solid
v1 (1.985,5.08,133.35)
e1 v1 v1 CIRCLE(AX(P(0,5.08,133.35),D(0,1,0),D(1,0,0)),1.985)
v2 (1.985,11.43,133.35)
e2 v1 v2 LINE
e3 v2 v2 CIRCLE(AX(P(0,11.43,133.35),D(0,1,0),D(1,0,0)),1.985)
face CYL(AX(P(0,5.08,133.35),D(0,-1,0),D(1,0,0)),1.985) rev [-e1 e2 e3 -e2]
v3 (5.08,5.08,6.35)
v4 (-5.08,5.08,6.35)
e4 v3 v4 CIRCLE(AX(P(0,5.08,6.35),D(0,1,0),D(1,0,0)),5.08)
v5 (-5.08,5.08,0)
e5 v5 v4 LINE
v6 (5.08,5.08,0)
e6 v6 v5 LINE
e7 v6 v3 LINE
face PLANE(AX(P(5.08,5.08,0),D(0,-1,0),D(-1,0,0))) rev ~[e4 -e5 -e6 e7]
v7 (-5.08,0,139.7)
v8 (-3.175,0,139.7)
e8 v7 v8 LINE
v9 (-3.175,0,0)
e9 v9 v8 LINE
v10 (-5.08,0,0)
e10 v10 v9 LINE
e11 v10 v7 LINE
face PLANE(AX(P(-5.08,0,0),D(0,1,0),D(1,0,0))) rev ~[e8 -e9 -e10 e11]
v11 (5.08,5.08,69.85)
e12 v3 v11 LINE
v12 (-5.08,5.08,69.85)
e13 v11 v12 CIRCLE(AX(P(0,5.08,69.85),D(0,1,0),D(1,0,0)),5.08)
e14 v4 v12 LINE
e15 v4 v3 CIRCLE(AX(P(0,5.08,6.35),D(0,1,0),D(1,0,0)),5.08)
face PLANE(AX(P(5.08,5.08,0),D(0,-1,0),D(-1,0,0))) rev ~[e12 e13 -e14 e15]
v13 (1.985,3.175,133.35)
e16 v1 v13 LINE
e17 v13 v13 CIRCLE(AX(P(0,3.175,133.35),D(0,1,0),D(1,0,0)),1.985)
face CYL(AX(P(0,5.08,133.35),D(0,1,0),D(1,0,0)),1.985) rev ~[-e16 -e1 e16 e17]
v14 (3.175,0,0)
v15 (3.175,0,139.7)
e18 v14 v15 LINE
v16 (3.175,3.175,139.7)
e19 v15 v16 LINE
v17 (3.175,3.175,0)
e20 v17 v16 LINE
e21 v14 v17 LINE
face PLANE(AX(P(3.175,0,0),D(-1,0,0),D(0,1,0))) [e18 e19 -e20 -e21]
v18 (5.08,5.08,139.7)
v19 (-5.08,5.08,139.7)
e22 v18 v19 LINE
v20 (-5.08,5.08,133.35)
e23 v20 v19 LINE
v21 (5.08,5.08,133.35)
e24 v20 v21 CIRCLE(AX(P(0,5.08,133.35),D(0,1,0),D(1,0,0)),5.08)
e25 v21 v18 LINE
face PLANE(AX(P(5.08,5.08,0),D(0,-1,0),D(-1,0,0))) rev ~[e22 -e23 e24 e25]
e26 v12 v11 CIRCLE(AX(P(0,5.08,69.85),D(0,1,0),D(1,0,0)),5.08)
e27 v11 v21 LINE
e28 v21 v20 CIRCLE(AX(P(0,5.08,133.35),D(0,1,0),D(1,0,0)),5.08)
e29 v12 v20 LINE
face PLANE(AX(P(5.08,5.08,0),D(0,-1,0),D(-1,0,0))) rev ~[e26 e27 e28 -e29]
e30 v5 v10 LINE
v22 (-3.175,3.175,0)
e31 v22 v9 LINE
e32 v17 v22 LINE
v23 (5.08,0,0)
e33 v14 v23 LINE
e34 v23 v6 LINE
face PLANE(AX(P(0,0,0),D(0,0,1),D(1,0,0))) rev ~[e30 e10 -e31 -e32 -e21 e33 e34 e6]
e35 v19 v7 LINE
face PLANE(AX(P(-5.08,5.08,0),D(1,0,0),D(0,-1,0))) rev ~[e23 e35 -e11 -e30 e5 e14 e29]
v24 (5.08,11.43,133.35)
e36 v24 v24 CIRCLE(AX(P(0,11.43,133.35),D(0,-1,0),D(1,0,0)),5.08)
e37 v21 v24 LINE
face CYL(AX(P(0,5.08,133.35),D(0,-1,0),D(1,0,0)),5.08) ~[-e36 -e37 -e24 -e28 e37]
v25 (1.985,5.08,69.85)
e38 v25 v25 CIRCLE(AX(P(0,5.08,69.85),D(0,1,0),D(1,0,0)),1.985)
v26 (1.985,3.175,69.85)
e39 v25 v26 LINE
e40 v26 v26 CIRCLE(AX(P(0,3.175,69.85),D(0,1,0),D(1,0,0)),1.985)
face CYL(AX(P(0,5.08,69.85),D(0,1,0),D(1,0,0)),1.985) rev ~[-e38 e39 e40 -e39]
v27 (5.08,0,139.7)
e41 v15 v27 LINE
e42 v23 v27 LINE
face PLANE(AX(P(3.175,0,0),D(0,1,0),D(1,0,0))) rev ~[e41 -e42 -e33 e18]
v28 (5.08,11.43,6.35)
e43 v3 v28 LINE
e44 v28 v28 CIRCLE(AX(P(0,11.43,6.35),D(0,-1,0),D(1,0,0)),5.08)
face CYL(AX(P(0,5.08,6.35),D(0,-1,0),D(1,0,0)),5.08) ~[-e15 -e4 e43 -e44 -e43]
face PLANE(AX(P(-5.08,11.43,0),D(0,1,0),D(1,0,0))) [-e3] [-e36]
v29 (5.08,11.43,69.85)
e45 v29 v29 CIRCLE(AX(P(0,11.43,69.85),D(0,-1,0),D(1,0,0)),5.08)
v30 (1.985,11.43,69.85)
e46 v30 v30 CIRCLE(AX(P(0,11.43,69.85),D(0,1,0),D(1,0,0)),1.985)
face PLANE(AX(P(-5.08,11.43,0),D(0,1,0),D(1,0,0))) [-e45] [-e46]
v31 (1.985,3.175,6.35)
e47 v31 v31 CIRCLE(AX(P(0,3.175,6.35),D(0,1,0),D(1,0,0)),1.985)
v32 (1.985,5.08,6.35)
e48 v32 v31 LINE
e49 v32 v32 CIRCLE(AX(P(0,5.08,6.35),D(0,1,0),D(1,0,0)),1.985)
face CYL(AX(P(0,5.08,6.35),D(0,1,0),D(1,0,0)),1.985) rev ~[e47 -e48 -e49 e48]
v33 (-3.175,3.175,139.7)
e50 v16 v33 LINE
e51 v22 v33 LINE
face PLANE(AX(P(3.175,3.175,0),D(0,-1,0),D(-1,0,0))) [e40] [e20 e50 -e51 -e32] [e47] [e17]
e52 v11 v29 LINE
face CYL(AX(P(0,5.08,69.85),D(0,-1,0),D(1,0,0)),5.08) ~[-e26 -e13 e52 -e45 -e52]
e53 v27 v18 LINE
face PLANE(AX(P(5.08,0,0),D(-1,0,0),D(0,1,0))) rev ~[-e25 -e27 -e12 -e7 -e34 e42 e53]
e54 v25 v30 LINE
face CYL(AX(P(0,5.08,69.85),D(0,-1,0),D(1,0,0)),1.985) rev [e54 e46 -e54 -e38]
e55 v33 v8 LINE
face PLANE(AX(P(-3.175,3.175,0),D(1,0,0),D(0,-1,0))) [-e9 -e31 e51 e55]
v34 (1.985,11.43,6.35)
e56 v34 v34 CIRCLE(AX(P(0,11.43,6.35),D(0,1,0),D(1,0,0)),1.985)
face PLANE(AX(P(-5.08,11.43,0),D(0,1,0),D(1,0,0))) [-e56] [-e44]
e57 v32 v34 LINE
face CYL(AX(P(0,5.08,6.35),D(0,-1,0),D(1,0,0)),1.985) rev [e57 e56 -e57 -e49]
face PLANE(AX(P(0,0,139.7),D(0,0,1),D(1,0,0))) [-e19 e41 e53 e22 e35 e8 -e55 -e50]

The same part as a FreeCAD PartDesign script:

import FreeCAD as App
import Part
import Sketcher
Q = App.Units.Quantity


def add_polygon(sketch, points):
    """Adds a closed chain of lines whose ends are joined by coincident constraints."""
    first, n = sketch.GeometryCount, len(points)
    for a, b in zip(points, points[1:] + points[:1]):
        sketch.addGeometry(Part.LineSegment(App.Vector(*a, 0), App.Vector(*b, 0)), False)
    for i in range(n):
        sketch.addConstraint(Sketcher.Constraint("Coincident", first + i, 2, first + (i + 1) % n, 1))

doc = App.newDocument("Part")
body = doc.addObject("PartDesign::Body", "Body")

# Sketch on XY plane
sketch1 = body.newObject("Sketcher::SketchObject", "Sketch")
sketch1.AttachmentSupport = (doc.getObject("XY_Plane"), [""])
sketch1.MapMode = "FlatFace"
add_polygon(sketch1, [(3.2, 3.2), (3.2, 0), (5.1, 0), (5.1, 5.1), (-5.1, 5.1), (-5.1, 0), (-3.2, 0), (-3.2, 3.2)])  # lines 0-7
sketch1.addConstraint([
    Sketcher.Constraint("Vertical", 0),
    Sketcher.Constraint("Horizontal", 1),
    Sketcher.Constraint("Vertical", 2),
    Sketcher.Constraint("Horizontal", 3),
    Sketcher.Constraint("Vertical", 4),
    Sketcher.Constraint("Horizontal", 5),
    Sketcher.Constraint("Vertical", 6),
    Sketcher.Constraint("Horizontal", 7),
    Sketcher.Constraint("Symmetric", 1, 2, 4, 2, -1, 1),
    Sketcher.Constraint("Symmetric", 0, 2, 5, 2, -2),
    Sketcher.Constraint("DistanceX", 3, 2, 3, 1, Q("0.4 in")),
    Sketcher.Constraint("DistanceY", 2, 1, 2, 2, Q("0.2 in")),
    Sketcher.Constraint("DistanceX", 7, 1, 7, 2, Q("0.25 in")),
    Sketcher.Constraint("DistanceY", 0, 2, 0, 1, Q("0.125 in")),
])
pad1 = body.newObject("PartDesign::Pad", "Pad")
pad1.Profile = sketch1
pad1.Length = Q("5.5 in")

# Sketch on XZ plane
sketch2 = body.newObject("Sketcher::SketchObject", "Sketch001")
sketch2.AttachmentSupport = (doc.getObject("XZ_Plane"), [""])
sketch2.MapMode = "FlatFace"
sketch2.AttachmentOffset = App.Placement(App.Vector(0, 0, -0.2 * 25.4), App.Rotation())
sketch2.addGeometry([
    Part.Circle(App.Vector(0, 6.3, 0), App.Vector(0, 0, 1), 2),
    Part.Circle(App.Vector(0, 133.3, 0), App.Vector(0, 0, 1), 2),
    Part.Circle(App.Vector(0, 69.8, 0), App.Vector(0, 0, 1), 2),
], False)
sketch2.addConstraint([
    Sketcher.Constraint("Equal", 0, 1),
    Sketcher.Constraint("Equal", 1, 2),
    Sketcher.Constraint("PointOnObject", 0, 3, -2),
    Sketcher.Constraint("PointOnObject", 1, 3, -2),
    Sketcher.Constraint("PointOnObject", 2, 3, -2),
    Sketcher.Constraint("Diameter", 0, Q("0.1563 in")),
    Sketcher.Constraint("DistanceY", 0, 3, 1, 3, Q("5 in")),
    Sketcher.Constraint("DistanceY", 0, 3, 2, 3, Q("2.5 in")),
    Sketcher.Constraint("DistanceY", -1, 1, 0, 3, Q("0.25 in")),
])
pocket1 = body.newObject("PartDesign::Pocket", "Pocket")
pocket1.Profile = sketch2
pocket1.Length = Q("5.5 in")
pocket1.Reversed = True

# Sketch on XZ plane
sketch3 = body.newObject("Sketcher::SketchObject", "Sketch002")
sketch3.AttachmentSupport = (doc.getObject("XZ_Plane"), [""])
sketch3.MapMode = "FlatFace"
sketch3.AttachmentOffset = App.Placement(App.Vector(0, 0, -0.2 * 25.4), App.Rotation())
sketch3.addGeometry([
    Part.Circle(App.Vector(0, 133.3, 0), App.Vector(0, 0, 1), 5.1),  # 0
    Part.Circle(App.Vector(0, 133.3, 0), App.Vector(0, 0, 1), 2),  # 1
    Part.Circle(App.Vector(0, 6.3, 0), App.Vector(0, 0, 1), 5.1),  # 2
    Part.Circle(App.Vector(0, 6.3, 0), App.Vector(0, 0, 1), 2),  # 3
    Part.Circle(App.Vector(0, 69.8, 0), App.Vector(0, 0, 1), 5.1),  # 4
    Part.Circle(App.Vector(0, 69.8, 0), App.Vector(0, 0, 1), 2),  # 5
], False)
sketch3.addConstraint([
    Sketcher.Constraint("Coincident", 1, 3, 0, 3),
    Sketcher.Constraint("Coincident", 3, 3, 2, 3),
    Sketcher.Constraint("Coincident", 5, 3, 4, 3),
    Sketcher.Constraint("Equal", 0, 2),
    Sketcher.Constraint("Equal", 1, 3),
    Sketcher.Constraint("Equal", 2, 4),
    Sketcher.Constraint("Equal", 3, 5),
    Sketcher.Constraint("PointOnObject", 0, 3, -2),
    Sketcher.Constraint("PointOnObject", 2, 3, -2),
    Sketcher.Constraint("PointOnObject", 4, 3, -2),
    Sketcher.Constraint("Diameter", 0, Q("0.4 in")),
    Sketcher.Constraint("DistanceY", 2, 3, 0, 3, Q("5 in")),
    Sketcher.Constraint("Diameter", 1, Q("0.1563 in")),
    Sketcher.Constraint("DistanceY", 2, 3, 4, 3, Q("2.5 in")),
    Sketcher.Constraint("DistanceY", -1, 1, 0, 3, Q("5.25 in")),
])
pad2 = body.newObject("PartDesign::Pad", "Pad001")
pad2.Profile = sketch3
pad2.Length = Q("0.25 in")
pad2.Reversed = True

doc.recompute()
